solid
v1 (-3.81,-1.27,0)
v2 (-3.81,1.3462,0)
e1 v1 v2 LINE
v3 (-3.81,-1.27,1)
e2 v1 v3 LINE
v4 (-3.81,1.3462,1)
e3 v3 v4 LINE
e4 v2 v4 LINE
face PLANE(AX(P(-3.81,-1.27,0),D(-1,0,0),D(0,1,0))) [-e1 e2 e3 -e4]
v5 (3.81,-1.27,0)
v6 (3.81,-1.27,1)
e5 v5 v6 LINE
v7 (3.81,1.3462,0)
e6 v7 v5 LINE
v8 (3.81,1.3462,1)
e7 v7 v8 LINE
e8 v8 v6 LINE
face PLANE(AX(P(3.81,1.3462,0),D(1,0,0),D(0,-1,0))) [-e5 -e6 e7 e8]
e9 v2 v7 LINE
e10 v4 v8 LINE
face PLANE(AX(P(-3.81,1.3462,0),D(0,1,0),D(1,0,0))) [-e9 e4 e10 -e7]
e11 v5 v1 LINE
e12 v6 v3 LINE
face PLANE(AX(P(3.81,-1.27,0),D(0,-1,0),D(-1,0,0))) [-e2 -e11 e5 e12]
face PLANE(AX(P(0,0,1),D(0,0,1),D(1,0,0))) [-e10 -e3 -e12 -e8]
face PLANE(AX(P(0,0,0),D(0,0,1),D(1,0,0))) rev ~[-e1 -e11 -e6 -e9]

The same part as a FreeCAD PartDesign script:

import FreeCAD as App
import Part
import Sketcher
Q = App.Units.Quantity


def add_polygon(sketch, points):
    """Adds a closed chain of lines whose ends are joined by coincident constraints."""
    first, n = sketch.GeometryCount, len(points)
    for a, b in zip(points, points[1:] + points[:1]):
        sketch.addGeometry(Part.LineSegment(App.Vector(*a, 0), App.Vector(*b, 0)), False)
    for i in range(n):
        sketch.addConstraint(Sketcher.Constraint("Coincident", first + i, 2, first + (i + 1) % n, 1))

doc = App.newDocument("Part")
params = doc.addObject("Spreadsheet::Sheet", "Params")
for row, (alias, value) in enumerate([
    ("sketch1_width", "0.3 in"),
    ("sketch1_height", "0.103 in"),
    ("pad1_length", "1 mm"),
], start=1):
    params.set(f"A{row}", alias)
    params.set(f"B{row}", "=" + value)
    params.setAlias(f"B{row}", alias)

body = doc.addObject("PartDesign::Body", "Body")

# Sketch on XY plane
sketch1 = body.newObject("Sketcher::SketchObject", "Sketch")
sketch1.AttachmentSupport = (doc.getObject("XY_Plane"), [""])
sketch1.MapMode = "FlatFace"
add_polygon(sketch1, [(3.8, 1.3), (-3.8, 1.3), (-3.8, -1.3), (3.8, -1.3)])  # lines 0-3
sketch1.addConstraint([
    Sketcher.Constraint("Horizontal", 0),
    Sketcher.Constraint("Vertical", 1),
    Sketcher.Constraint("Horizontal", 2),
    Sketcher.Constraint("Vertical", 3),
    Sketcher.Constraint("DistanceX", 0, 2, 0, 1, Q("0.3 in")),
    Sketcher.Constraint("DistanceY", 1, 2, 1, 1, Q("0.103 in")),
    Sketcher.Constraint("DistanceX", 0, 2, -1, 1, Q("0.15 in")),
    Sketcher.Constraint("DistanceY", 1, 2, -1, 1, Q("0.05 in")),
])
sketch1.setExpression("Constraints[8]", "Params.sketch1_width")
sketch1.setExpression("Constraints[9]", "Params.sketch1_height")
pad1 = body.newObject("PartDesign::Pad", "Pad")
pad1.Profile = sketch1
pad1.setExpression("Length", "Params.pad1_length")

doc.recompute()
